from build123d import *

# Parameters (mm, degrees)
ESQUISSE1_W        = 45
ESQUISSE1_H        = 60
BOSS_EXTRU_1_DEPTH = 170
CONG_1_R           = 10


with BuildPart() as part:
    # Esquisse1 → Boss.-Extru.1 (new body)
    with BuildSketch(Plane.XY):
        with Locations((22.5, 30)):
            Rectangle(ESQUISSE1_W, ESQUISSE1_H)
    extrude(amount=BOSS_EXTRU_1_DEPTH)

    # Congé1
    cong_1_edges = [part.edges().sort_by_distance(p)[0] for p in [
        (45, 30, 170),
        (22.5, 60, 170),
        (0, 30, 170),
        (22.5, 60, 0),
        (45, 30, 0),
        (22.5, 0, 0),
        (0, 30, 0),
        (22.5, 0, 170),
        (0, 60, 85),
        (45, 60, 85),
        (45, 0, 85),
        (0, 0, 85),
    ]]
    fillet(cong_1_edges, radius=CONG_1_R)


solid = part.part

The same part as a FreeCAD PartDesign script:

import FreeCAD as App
import Part
import Sketcher
from FreeCAD import Vector

doc = App.newDocument("Part")
params = doc.addObject("Spreadsheet::Sheet", "Params")
for row, (alias, value) in enumerate([
    ("sketch1_width", "45 mm"),
    ("sketch1_height", "60 mm"),
    ("pad1_length", "170 mm"),
    ("fillet_radius", "10 mm"),
], start=1):
    params.set(f"A{row}", alias)
    params.set(f"B{row}", "=" + value)
    params.setAlias(f"B{row}", alias)

body = doc.addObject("PartDesign::Body", "Body")

# Sketch on XY plane
sketch1 = body.newObject("Sketcher::SketchObject", "Sketch")
sketch1.AttachmentSupport = (doc.getObject("XY_Plane"), [""])
sketch1.MapMode = "FlatFace"
sketch1.addGeometry([
    Part.LineSegment(Vector(0, 60, 0), Vector(0, 0, 0)),
    Part.LineSegment(Vector(0, 0, 0), Vector(45, 0, 0)),
    Part.LineSegment(Vector(45, 0, 0), Vector(45, 60, 0)),
    Part.LineSegment(Vector(45, 60, 0), Vector(0, 60, 0)),
], False)
sketch1.addConstraint([
    Sketcher.Constraint("Coincident", 0, 2, 1, 1),
    Sketcher.Constraint("Coincident", 1, 2, 2, 1),
    Sketcher.Constraint("Coincident", 2, 2, 3, 1),
    Sketcher.Constraint("Coincident", 3, 2, 0, 1),
    Sketcher.Constraint("Vertical", 0),
    Sketcher.Constraint("Horizontal", 1),
    Sketcher.Constraint("Vertical", 2),
    Sketcher.Constraint("Horizontal", 3),
    Sketcher.Constraint("Coincident", 0, 2, -1, 1),
    Sketcher.Constraint("DistanceX", 1, 1, 1, 2, 45.0),
    Sketcher.Constraint("DistanceY", 0, 2, 0, 1, 60.0),
])
sketch1.setExpression("Constraints[9]", "Params.sketch1_width")
sketch1.setExpression("Constraints[10]", "Params.sketch1_height")
pad1 = body.newObject("PartDesign::Pad", "Pad")
pad1.Profile = sketch1
pad1.setExpression("Length", "Params.pad1_length")
doc.recompute()

fillet = body.newObject("PartDesign::Fillet", "Fillet")
fillet.Base = (pad1, ["Edge1"])
fillet.UseAllEdges = True
fillet.setExpression("Radius", "Params.fillet_radius")

doc.recompute()
